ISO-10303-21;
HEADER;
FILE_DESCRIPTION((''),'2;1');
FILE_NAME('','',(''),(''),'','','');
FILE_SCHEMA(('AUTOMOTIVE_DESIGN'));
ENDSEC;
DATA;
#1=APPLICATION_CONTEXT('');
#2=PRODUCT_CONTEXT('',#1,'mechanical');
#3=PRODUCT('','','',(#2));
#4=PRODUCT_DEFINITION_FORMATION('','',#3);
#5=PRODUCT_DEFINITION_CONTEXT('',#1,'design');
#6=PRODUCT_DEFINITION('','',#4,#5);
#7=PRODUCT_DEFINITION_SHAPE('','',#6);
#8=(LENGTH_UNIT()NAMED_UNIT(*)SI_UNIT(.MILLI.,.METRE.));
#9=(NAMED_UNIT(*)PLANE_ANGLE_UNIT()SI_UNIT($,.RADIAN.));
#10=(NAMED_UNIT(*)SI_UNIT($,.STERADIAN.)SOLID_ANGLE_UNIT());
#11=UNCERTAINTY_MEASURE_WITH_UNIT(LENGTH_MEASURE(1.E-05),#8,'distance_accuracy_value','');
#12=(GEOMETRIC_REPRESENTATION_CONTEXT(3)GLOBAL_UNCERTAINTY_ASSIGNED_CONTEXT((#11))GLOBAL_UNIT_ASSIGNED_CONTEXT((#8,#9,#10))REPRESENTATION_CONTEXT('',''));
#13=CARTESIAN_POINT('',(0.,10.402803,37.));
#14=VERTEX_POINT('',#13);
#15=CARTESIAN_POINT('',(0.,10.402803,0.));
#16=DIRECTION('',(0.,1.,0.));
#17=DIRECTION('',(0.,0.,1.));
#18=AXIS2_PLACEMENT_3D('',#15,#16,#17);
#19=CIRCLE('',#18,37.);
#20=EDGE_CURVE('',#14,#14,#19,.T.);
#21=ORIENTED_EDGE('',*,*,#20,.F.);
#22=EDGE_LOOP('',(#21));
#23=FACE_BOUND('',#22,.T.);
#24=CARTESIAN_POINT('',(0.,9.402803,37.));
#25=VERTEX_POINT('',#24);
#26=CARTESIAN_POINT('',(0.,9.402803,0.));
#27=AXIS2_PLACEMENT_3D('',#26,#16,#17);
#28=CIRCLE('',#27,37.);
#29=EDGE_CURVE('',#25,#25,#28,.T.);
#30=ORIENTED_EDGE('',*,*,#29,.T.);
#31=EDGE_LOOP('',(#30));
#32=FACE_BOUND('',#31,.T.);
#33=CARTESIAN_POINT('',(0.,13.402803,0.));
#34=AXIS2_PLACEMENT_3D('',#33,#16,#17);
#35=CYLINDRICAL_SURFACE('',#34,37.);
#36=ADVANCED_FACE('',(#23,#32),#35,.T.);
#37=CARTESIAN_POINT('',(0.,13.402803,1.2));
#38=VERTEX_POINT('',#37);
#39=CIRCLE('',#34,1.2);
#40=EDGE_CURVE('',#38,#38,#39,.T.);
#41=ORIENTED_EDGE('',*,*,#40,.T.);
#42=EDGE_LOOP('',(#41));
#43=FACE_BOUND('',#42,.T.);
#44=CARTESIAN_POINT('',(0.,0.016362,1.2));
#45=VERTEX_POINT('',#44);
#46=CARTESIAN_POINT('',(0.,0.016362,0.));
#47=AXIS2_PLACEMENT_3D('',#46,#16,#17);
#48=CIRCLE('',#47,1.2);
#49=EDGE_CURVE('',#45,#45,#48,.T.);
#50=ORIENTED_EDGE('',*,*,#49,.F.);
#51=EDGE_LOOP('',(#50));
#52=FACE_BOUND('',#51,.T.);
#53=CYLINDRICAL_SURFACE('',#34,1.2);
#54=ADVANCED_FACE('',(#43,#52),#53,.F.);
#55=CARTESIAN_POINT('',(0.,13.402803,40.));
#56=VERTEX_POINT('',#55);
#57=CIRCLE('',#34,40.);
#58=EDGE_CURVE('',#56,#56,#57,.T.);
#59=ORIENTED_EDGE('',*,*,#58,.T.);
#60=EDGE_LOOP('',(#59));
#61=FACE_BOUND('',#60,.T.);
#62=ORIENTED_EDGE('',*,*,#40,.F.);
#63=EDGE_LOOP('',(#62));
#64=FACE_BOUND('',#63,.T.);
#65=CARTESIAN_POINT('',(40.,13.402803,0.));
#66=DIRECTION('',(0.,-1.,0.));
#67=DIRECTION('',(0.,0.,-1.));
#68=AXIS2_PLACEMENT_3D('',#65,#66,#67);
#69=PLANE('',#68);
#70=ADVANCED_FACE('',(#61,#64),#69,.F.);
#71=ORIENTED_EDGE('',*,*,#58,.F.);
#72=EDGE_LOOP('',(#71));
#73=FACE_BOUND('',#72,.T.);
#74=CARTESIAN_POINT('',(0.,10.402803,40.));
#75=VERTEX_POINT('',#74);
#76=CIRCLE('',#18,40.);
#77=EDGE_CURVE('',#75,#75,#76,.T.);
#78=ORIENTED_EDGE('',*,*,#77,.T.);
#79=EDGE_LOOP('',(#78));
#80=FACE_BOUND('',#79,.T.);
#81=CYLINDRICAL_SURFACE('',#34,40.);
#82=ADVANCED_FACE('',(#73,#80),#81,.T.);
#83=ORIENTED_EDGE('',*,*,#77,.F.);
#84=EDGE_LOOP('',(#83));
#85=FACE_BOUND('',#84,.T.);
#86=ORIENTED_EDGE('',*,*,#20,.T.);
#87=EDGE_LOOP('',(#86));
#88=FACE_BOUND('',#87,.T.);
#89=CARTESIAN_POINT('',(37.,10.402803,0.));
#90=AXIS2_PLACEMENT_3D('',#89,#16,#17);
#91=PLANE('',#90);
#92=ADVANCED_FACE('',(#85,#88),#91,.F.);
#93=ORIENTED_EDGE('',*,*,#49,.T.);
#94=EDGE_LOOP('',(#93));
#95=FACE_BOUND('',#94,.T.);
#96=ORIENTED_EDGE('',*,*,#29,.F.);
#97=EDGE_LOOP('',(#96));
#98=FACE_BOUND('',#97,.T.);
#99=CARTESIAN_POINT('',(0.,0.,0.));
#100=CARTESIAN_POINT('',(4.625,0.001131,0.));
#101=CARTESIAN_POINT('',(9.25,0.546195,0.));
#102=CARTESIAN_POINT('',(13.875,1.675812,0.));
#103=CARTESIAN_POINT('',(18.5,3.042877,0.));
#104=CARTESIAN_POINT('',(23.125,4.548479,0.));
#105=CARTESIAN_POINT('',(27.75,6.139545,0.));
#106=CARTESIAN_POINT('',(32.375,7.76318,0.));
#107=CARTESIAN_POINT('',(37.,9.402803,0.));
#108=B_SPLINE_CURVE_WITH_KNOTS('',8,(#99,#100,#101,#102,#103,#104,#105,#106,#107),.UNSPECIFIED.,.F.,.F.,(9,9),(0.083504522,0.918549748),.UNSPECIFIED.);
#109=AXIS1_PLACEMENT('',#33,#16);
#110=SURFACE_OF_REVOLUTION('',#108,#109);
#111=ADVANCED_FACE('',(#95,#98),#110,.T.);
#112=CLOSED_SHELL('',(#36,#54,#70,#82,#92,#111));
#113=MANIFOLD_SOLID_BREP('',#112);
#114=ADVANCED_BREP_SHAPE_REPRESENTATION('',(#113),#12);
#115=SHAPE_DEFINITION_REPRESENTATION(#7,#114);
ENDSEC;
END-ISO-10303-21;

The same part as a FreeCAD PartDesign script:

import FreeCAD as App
import Part
import Sketcher

V = App.Vector
Q = App.Units.Quantity

doc = App.newDocument("Part")
params = doc.addObject("Spreadsheet::Sheet", "Params")
for row, (alias, value) in enumerate([
    ("sketch1_width", "3 mm"),
    ("sketch1_height", "5 mm"),
    ("sketch1_height2", "1 mm"),
    ("sketch1_width2", "1.2 mm"),
    ("revolution_angle", "360 deg"),
    ("sketch2_diameter", "2.4 mm"),
], start=1):
    params.set(f"A{row}", alias)
    params.set(f"B{row}", "=" + value)
    params.setAlias(f"B{row}", alias)

body = doc.addObject("PartDesign::Body", "Body")

# Sketch on XY plane
sketch1 = body.newObject("Sketcher::SketchObject", "Sketch")
sketch1.AttachmentSupport = (doc.getObject("XY_Plane"), [""])
sketch1.MapMode = "FlatFace"
sketch1.addGeometry([
    Part.LineSegment(V(1.2, 13.402803, 0), V(1.2, 8.402803, 0)),  # 0
    Part.LineSegment(V(1.2, 8.402803, 0), V(0, 8.402803, 0)),  # 1
    Part.LineSegment(V(0, 8.402803, 0), V(0, 0, 0)),  # 2
    Part.BSplineCurve([V(0, 0, 0), V(4.625, 0.001131, 0), V(9.25, 0.546195, 0), V(13.875, 1.675812, 0), V(18.5, 3.042877, 0), V(23.125, 4.548479, 0), V(27.75, 6.139545, 0), V(32.375, 7.76318, 0), V(37, 9.402803, 0)], [9, 9], [0.083504522, 0.918549748], False, 8, [1, 1, 1, 1, 1, 1, 1, 1, 1], False),  # 3
    Part.LineSegment(V(37, 9.402803, 0), V(37, 10.402803, 0)),  # 4
    Part.LineSegment(V(37, 10.402803, 0), V(40, 10.402803, 0)),  # 5
    Part.LineSegment(V(40, 10.402803, 0), V(40, 13.402803, 0)),  # 6
    Part.LineSegment(V(40, 13.402803, 0), V(1.2, 13.402803, 0)),  # 7
], False)
sketch1.addConstraint([
    Sketcher.Constraint("Block", 3),
    Sketcher.Constraint("Coincident", 0, 2, 1, 1),
    Sketcher.Constraint("Coincident", 1, 2, 2, 1),
    Sketcher.Constraint("Coincident", 2, 2, 3, 1),
    Sketcher.Constraint("Coincident", 3, 2, 4, 1),
    Sketcher.Constraint("Coincident", 4, 2, 5, 1),
    Sketcher.Constraint("Coincident", 5, 2, 6, 1),
    Sketcher.Constraint("Coincident", 6, 2, 7, 1),
    Sketcher.Constraint("Coincident", 7, 2, 0, 1),
    Sketcher.Constraint("Vertical", 0),
    Sketcher.Constraint("Horizontal", 1),
    Sketcher.Constraint("Vertical", 2),
    Sketcher.Constraint("Vertical", 4),
    Sketcher.Constraint("Horizontal", 5),
    Sketcher.Constraint("Vertical", 6),
    Sketcher.Constraint("Horizontal", 7),
    Sketcher.Constraint("Equal", 5, 6),
    Sketcher.Constraint("DistanceX", 5, 1, 5, 2, Q("3 mm")),
    Sketcher.Constraint("DistanceY", 0, 2, 0, 1, Q("5 mm")),
    Sketcher.Constraint("DistanceY", 4, 1, 4, 2, Q("1 mm")),
    Sketcher.Constraint("DistanceX", 1, 2, 1, 1, Q("1.2 mm")),
])
sketch1.setExpression("Constraints[17]", "Params.sketch1_width")
sketch1.setExpression("Constraints[18]", "Params.sketch1_height")
sketch1.setExpression("Constraints[19]", "Params.sketch1_height2")
sketch1.setExpression("Constraints[20]", "Params.sketch1_width2")
revolution = body.newObject("PartDesign::Revolution", "Revolution")
revolution.Profile = sketch1
revolution.ReferenceAxis = (sketch1, ["V_Axis"])
revolution.setExpression("Angle", "Params.revolution_angle")

# Sketch on XZ plane
sketch2 = body.newObject("Sketcher::SketchObject", "Sketch001")
sketch2.AttachmentSupport = (doc.getObject("XZ_Plane"), [""])
sketch2.MapMode = "FlatFace"
sketch2.AttachmentOffset = App.Placement(V(0, 0, -13.402803), App.Rotation())
sketch2.addGeometry(Part.Circle(V(0, 0, 0), V(0, 0, 1), 1.2), False)
sketch2.addConstraint([
    Sketcher.Constraint("Coincident", 0, 3, -1, 1),
    Sketcher.Constraint("Diameter", 0, Q("2.4 mm")),
])
sketch2.setExpression("Constraints[1]", "Params.sketch2_diameter")
pocket1 = body.newObject("PartDesign::Pocket", "Pocket")
pocket1.Profile = sketch2
pocket1.Type = "ThroughAll"
pocket1.Reversed = True

doc.recompute()
